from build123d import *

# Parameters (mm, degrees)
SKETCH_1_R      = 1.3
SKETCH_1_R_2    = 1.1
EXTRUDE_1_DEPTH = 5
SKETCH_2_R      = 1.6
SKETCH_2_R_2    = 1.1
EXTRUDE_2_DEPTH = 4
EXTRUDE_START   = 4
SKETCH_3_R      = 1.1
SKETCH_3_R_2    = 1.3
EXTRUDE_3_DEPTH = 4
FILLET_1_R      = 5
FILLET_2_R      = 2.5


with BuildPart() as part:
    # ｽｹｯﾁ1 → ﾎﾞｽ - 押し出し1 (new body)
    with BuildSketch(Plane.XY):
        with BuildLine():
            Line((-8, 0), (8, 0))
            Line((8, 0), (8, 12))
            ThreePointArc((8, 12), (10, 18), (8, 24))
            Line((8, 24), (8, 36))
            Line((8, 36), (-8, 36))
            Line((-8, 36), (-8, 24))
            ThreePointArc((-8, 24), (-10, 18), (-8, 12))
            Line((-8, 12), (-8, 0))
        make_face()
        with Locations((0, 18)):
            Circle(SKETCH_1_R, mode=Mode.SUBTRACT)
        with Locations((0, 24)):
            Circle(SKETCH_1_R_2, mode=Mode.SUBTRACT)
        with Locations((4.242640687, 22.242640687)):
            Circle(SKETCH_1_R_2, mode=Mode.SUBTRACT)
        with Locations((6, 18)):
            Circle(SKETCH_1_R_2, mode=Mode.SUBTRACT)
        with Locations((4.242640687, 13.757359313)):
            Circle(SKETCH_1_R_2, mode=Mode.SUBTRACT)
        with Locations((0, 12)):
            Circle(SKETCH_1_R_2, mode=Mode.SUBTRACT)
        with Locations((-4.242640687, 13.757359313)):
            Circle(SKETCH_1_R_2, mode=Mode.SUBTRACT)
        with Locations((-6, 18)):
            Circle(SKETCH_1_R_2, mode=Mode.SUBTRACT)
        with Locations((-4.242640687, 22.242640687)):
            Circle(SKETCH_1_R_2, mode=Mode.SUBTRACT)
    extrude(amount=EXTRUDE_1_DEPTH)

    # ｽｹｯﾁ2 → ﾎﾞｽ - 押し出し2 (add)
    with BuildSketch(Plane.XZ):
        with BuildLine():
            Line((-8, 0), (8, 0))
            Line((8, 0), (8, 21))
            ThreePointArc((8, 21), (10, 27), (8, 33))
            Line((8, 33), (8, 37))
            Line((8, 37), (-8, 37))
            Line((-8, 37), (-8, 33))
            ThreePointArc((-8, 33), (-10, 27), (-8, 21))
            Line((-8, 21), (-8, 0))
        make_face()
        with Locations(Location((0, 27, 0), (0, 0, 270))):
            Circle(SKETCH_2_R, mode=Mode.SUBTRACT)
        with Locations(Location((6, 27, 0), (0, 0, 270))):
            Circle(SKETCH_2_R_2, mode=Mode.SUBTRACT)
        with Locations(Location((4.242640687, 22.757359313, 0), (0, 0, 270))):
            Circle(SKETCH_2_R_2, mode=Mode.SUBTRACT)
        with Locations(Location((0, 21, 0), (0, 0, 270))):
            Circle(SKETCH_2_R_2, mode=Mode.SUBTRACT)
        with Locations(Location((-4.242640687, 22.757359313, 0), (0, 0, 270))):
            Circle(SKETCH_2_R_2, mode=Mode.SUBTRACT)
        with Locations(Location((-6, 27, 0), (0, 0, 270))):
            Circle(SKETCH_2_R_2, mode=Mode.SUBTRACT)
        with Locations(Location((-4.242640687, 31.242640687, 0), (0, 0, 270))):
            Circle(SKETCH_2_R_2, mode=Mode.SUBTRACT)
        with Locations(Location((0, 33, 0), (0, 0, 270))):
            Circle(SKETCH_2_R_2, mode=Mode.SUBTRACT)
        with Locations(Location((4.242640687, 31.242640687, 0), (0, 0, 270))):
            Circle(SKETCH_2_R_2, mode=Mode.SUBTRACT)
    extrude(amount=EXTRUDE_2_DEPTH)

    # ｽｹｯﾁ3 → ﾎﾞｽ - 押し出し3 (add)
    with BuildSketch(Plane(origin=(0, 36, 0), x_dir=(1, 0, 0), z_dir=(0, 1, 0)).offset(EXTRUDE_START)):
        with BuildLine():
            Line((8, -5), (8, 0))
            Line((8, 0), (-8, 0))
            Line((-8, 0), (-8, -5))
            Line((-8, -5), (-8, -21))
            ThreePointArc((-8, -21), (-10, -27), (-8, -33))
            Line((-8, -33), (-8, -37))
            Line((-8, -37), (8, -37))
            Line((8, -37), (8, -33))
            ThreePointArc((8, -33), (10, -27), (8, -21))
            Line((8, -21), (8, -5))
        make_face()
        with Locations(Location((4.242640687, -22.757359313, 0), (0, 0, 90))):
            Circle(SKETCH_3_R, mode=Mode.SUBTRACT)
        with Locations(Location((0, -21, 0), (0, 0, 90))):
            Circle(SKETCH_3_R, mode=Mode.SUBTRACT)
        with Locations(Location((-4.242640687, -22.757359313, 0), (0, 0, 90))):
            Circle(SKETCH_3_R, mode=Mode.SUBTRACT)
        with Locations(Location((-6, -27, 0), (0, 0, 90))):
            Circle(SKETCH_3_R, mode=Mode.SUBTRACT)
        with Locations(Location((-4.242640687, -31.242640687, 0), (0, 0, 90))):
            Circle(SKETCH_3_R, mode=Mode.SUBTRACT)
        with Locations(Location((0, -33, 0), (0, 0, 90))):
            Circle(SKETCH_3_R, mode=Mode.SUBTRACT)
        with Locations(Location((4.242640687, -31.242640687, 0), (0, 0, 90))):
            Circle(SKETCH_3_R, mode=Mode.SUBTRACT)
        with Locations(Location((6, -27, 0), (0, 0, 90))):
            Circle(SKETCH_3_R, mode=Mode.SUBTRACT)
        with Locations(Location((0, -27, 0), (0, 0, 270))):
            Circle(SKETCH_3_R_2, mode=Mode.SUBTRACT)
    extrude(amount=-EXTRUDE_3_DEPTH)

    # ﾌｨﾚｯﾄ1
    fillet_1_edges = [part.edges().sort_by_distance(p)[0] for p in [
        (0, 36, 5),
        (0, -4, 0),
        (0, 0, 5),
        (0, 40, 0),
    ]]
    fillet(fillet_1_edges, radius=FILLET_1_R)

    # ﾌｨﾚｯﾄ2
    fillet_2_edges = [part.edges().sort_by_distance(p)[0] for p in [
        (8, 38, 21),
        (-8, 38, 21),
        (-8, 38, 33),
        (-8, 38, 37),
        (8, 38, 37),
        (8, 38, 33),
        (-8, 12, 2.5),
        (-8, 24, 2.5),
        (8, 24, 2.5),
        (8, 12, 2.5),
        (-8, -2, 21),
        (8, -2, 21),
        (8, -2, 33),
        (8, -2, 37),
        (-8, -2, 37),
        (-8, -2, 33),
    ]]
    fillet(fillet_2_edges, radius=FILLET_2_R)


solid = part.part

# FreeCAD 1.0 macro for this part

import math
import FreeCAD as App
import Part
import Sketcher


def edges_at(feature, points):
    """Names of the edges that pass closest to the given points."""
    edges = feature.Shape.Edges
    near = lambda p: min(range(len(edges)), key=lambda i: edges[i].distToShape(Part.Vertex(*p))[0])
    return sorted({f"Edge{near(p) + 1}" for p in points})

doc = App.newDocument("Part")
params = doc.addObject("Spreadsheet::Sheet", "Params")
for row, (alias, value) in enumerate([
    ("sketch1_radius", "10 mm"),
    ("sketch1_diameter", "2.2 mm"),
    ("sketch1_diameter2", "2.6 mm"),
    ("sketch1_width", "16 mm"),
    ("sketch1_height", "12 mm"),
    ("pad1_length", "5 mm"),
    ("sketch2_radius", "10 mm"),
    ("sketch2_diameter", "2.2 mm"),
    ("sketch2_diameter2", "3.2 mm"),
    ("sketch2_width", "16 mm"),
    ("sketch2_height", "21 mm"),
    ("pad2_length", "4 mm"),
    ("sketch3_radius", "10 mm"),
    ("sketch3_diameter", "2.2 mm"),
    ("sketch3_diameter2", "2.6 mm"),
    ("sketch3_width", "16 mm"),
    ("sketch3_height", "21 mm"),
    ("pad3_length", "4 mm"),
    ("fillet_radius", "5 mm"),
    ("fillet2_radius", "2.5 mm"),
], start=1):
    params.set(f"A{row}", alias)
    params.set(f"B{row}", "=" + value)
    params.setAlias(f"B{row}", alias)

body = doc.addObject("PartDesign::Body", "Body")

sketch1 = body.newObject("Sketcher::SketchObject", "Sketch")
sketch1.AttachmentSupport = (doc.getObject("XY_Plane"), [""])
sketch1.MapMode = "FlatFace"
sketch1.addGeometry(Part.LineSegment(App.Vector(-8, 0, 0), App.Vector(8, 0, 0)), False)
sketch1.addGeometry(Part.LineSegment(App.Vector(8, 0, 0), App.Vector(8, 12, 0)), False)
sketch1.addGeometry(Part.ArcOfCircle(Part.Circle(App.Vector(0, 18, 0), App.Vector(0, 0, 1), 10), math.radians(-37), math.radians(37)), False)
sketch1.addGeometry(Part.LineSegment(App.Vector(8, 24, 0), App.Vector(8, 36, 0)), False)
sketch1.addGeometry(Part.LineSegment(App.Vector(8, 36, 0), App.Vector(-8, 36, 0)), False)
sketch1.addGeometry(Part.LineSegment(App.Vector(-8, 36, 0), App.Vector(-8, 24, 0)), False)
sketch1.addGeometry(Part.ArcOfCircle(Part.Circle(App.Vector(0, 18, 0), App.Vector(0, 0, 1), 10), math.radians(143), math.radians(217)), False)
sketch1.addGeometry(Part.LineSegment(App.Vector(-8, 12, 0), App.Vector(-8, 0, 0)), False)
sketch1.addGeometry(Part.Circle(App.Vector(-4.2, 13.8, 0), App.Vector(0, 0, 1), 1.1), False)
sketch1.addGeometry(Part.Circle(App.Vector(0, 12, 0), App.Vector(0, 0, 1), 1.1), False)
sketch1.addGeometry(Part.Circle(App.Vector(4.2, 13.8, 0), App.Vector(0, 0, 1), 1.1), False)
sketch1.addGeometry(Part.Circle(App.Vector(-6, 18, 0), App.Vector(0, 0, 1), 1.1), False)
sketch1.addGeometry(Part.Circle(App.Vector(-4.2, 22.2, 0), App.Vector(0, 0, 1), 1.1), False)
sketch1.addGeometry(Part.Circle(App.Vector(0, 18, 0), App.Vector(0, 0, 1), 1.3), False)
sketch1.addGeometry(Part.Circle(App.Vector(6, 18, 0), App.Vector(0, 0, 1), 1.1), False)
sketch1.addGeometry(Part.Circle(App.Vector(0, 24, 0), App.Vector(0, 0, 1), 1.1), False)
sketch1.addGeometry(Part.Circle(App.Vector(4.2, 22.2, 0), App.Vector(0, 0, 1), 1.1), False)
sketch1.addConstraint(Sketcher.Constraint("Coincident", 0, 2, 1, 1))
sketch1.addConstraint(Sketcher.Constraint("Coincident", 1, 2, 2, 1))
sketch1.addConstraint(Sketcher.Constraint("Coincident", 2, 2, 3, 1))
sketch1.addConstraint(Sketcher.Constraint("Coincident", 3, 2, 4, 1))
sketch1.addConstraint(Sketcher.Constraint("Coincident", 4, 2, 5, 1))
sketch1.addConstraint(Sketcher.Constraint("Coincident", 5, 2, 6, 1))
sketch1.addConstraint(Sketcher.Constraint("Coincident", 6, 2, 7, 1))
sketch1.addConstraint(Sketcher.Constraint("Coincident", 7, 2, 0, 1))
sketch1.addConstraint(Sketcher.Constraint("Horizontal", 0))
sketch1.addConstraint(Sketcher.Constraint("Vertical", 1))
sketch1.addConstraint(Sketcher.Constraint("Vertical", 3))
sketch1.addConstraint(Sketcher.Constraint("Horizontal", 4))
sketch1.addConstraint(Sketcher.Constraint("Vertical", 5))
sketch1.addConstraint(Sketcher.Constraint("Vertical", 7))
sketch1.addConstraint(Sketcher.Constraint("Coincident", 6, 3, 2, 3))
sketch1.addConstraint(Sketcher.Constraint("Coincident", 13, 3, 2, 3))
sketch1.addConstraint(Sketcher.Constraint("Equal", 2, 6))
sketch1.addConstraint(Sketcher.Constraint("Equal", 8, 9))
sketch1.addConstraint(Sketcher.Constraint("Equal", 9, 10))
sketch1.addConstraint(Sketcher.Constraint("Equal", 10, 11))
sketch1.addConstraint(Sketcher.Constraint("Equal", 11, 12))
sketch1.addConstraint(Sketcher.Constraint("Equal", 12, 14))
sketch1.addConstraint(Sketcher.Constraint("Equal", 14, 15))
sketch1.addConstraint(Sketcher.Constraint("Equal", 15, 16))
sketch1.addConstraint(Sketcher.Constraint("Symmetric", 0, 2, 7, 2, -1, 1))
sketch1.addConstraint(Sketcher.Constraint("Symmetric", 8, 3, 10, 3, -2))
sketch1.addConstraint(Sketcher.Constraint("Symmetric", 11, 3, 14, 3, -2))
sketch1.addConstraint(Sketcher.Constraint("Symmetric", 12, 3, 16, 3, -2))
sketch1.addConstraint(Sketcher.Constraint("Symmetric", 2, 2, 5, 2, -2))
sketch1.addConstraint(Sketcher.Constraint("PointOnObject", 9, 3, -2))
sketch1.addConstraint(Sketcher.Constraint("PointOnObject", 15, 3, -2))
sketch1.addConstraint(Sketcher.Constraint("Horizontal", 6, 3, 11, 3))
sketch1.addConstraint(Sketcher.Constraint("Horizontal", 9, 3, 1, 2))
sketch1.addConstraint(Sketcher.Constraint("Horizontal", 15, 3, 2, 2))
sketch1.addConstraint(Sketcher.Constraint("Vertical", 8, 3, 12, 3))
sketch1.addConstraint(Sketcher.Constraint("Vertical", 1, 2, 2, 2))
sketch1.addConstraint(Sketcher.Constraint("Equal", 1, 3))
sketch1.addConstraint(Sketcher.Constraint("Radius", 2, 10.0))
sketch1.addConstraint(Sketcher.Constraint("Diameter", 8, 2.2))
sketch1.addConstraint(Sketcher.Constraint("Diameter", 13, 2.6))
sketch1.addConstraint(Sketcher.Constraint("DistanceX", 0, 1, 0, 2, 16.0))
sketch1.addConstraint(Sketcher.Constraint("DistanceY", 1, 1, 1, 2, 12.0))
sketch1.addConstraint(Sketcher.Constraint("DistanceX", 11, 3, -1, 1, 6.0))
sketch1.addConstraint(Sketcher.Constraint("DistanceX", 8, 3, -1, 1, 4.242641))
sketch1.addConstraint(Sketcher.Constraint("DistanceY", -1, 1, 8, 3, 13.757359))
sketch1.addConstraint(Sketcher.Constraint("DistanceY", -1, 1, 12, 3, 22.242641))
sketch1.setExpression("Constraints[37]", "Params.sketch1_radius")
sketch1.setExpression("Constraints[38]", "Params.sketch1_diameter")
sketch1.setExpression("Constraints[39]", "Params.sketch1_diameter2")
sketch1.setExpression("Constraints[40]", "Params.sketch1_width")
sketch1.setExpression("Constraints[41]", "Params.sketch1_height")
pad1 = body.newObject("PartDesign::Pad", "Pad")
pad1.Profile = sketch1
pad1.setExpression("Length", "Params.pad1_length")

sketch2 = body.newObject("Sketcher::SketchObject", "Sketch001")
sketch2.AttachmentSupport = (doc.getObject("XZ_Plane"), [""])
sketch2.MapMode = "FlatFace"
sketch2.addGeometry(Part.LineSegment(App.Vector(-8, 0, 0), App.Vector(8, 0, 0)), False)
sketch2.addGeometry(Part.LineSegment(App.Vector(8, 0, 0), App.Vector(8, 21, 0)), False)
sketch2.addGeometry(Part.ArcOfCircle(Part.Circle(App.Vector(0, 27, 0), App.Vector(0, 0, 1), 10), math.radians(-37), math.radians(37)), False)
sketch2.addGeometry(Part.LineSegment(App.Vector(8, 33, 0), App.Vector(8, 37, 0)), False)
sketch2.addGeometry(Part.LineSegment(App.Vector(8, 37, 0), App.Vector(-8, 37, 0)), False)
sketch2.addGeometry(Part.LineSegment(App.Vector(-8, 37, 0), App.Vector(-8, 33, 0)), False)
sketch2.addGeometry(Part.ArcOfCircle(Part.Circle(App.Vector(0, 27, 0), App.Vector(0, 0, 1), 10), math.radians(143), math.radians(217)), False)
sketch2.addGeometry(Part.LineSegment(App.Vector(-8, 21, 0), App.Vector(-8, 0, 0)), False)
sketch2.addGeometry(Part.Circle(App.Vector(-4.2, 22.8, 0), App.Vector(0, 0, 1), 1.1), False)
sketch2.addGeometry(Part.Circle(App.Vector(0, 21, 0), App.Vector(0, 0, 1), 1.1), False)
sketch2.addGeometry(Part.Circle(App.Vector(4.2, 22.8, 0), App.Vector(0, 0, 1), 1.1), False)
sketch2.addGeometry(Part.Circle(App.Vector(-6, 27, 0), App.Vector(0, 0, 1), 1.1), False)
sketch2.addGeometry(Part.Circle(App.Vector(-4.2, 31.2, 0), App.Vector(0, 0, 1), 1.1), False)
sketch2.addGeometry(Part.Circle(App.Vector(0, 27, 0), App.Vector(0, 0, 1), 1.6), False)
sketch2.addGeometry(Part.Circle(App.Vector(6, 27, 0), App.Vector(0, 0, 1), 1.1), False)
sketch2.addGeometry(Part.Circle(App.Vector(0, 33, 0), App.Vector(0, 0, 1), 1.1), False)
sketch2.addGeometry(Part.Circle(App.Vector(4.2, 31.2, 0), App.Vector(0, 0, 1), 1.1), False)
sketch2.addConstraint(Sketcher.Constraint("Coincident", 0, 2, 1, 1))
sketch2.addConstraint(Sketcher.Constraint("Coincident", 1, 2, 2, 1))
sketch2.addConstraint(Sketcher.Constraint("Coincident", 2, 2, 3, 1))
sketch2.addConstraint(Sketcher.Constraint("Coincident", 3, 2, 4, 1))
sketch2.addConstraint(Sketcher.Constraint("Coincident", 4, 2, 5, 1))
sketch2.addConstraint(Sketcher.Constraint("Coincident", 5, 2, 6, 1))
sketch2.addConstraint(Sketcher.Constraint("Coincident", 6, 2, 7, 1))
sketch2.addConstraint(Sketcher.Constraint("Coincident", 7, 2, 0, 1))
sketch2.addConstraint(Sketcher.Constraint("Horizontal", 0))
sketch2.addConstraint(Sketcher.Constraint("Vertical", 1))
sketch2.addConstraint(Sketcher.Constraint("Vertical", 3))
sketch2.addConstraint(Sketcher.Constraint("Horizontal", 4))
sketch2.addConstraint(Sketcher.Constraint("Vertical", 5))
sketch2.addConstraint(Sketcher.Constraint("Vertical", 7))
sketch2.addConstraint(Sketcher.Constraint("Coincident", 6, 3, 2, 3))
sketch2.addConstraint(Sketcher.Constraint("Coincident", 13, 3, 2, 3))
sketch2.addConstraint(Sketcher.Constraint("Equal", 2, 6))
sketch2.addConstraint(Sketcher.Constraint("Equal", 8, 9))
sketch2.addConstraint(Sketcher.Constraint("Equal", 9, 10))
sketch2.addConstraint(Sketcher.Constraint("Equal", 10, 11))
sketch2.addConstraint(Sketcher.Constraint("Equal", 11, 12))
sketch2.addConstraint(Sketcher.Constraint("Equal", 12, 14))
sketch2.addConstraint(Sketcher.Constraint("Equal", 14, 15))
sketch2.addConstraint(Sketcher.Constraint("Equal", 15, 16))
sketch2.addConstraint(Sketcher.Constraint("Symmetric", 0, 2, 7, 2, -1, 1))
sketch2.addConstraint(Sketcher.Constraint("Symmetric", 8, 3, 10, 3, -2))
sketch2.addConstraint(Sketcher.Constraint("Symmetric", 11, 3, 14, 3, -2))
sketch2.addConstraint(Sketcher.Constraint("Symmetric", 12, 3, 16, 3, -2))
sketch2.addConstraint(Sketcher.Constraint("Symmetric", 2, 2, 5, 2, -2))
sketch2.addConstraint(Sketcher.Constraint("PointOnObject", 9, 3, -2))
sketch2.addConstraint(Sketcher.Constraint("PointOnObject", 15, 3, -2))
sketch2.addConstraint(Sketcher.Constraint("Horizontal", 6, 3, 11, 3))
sketch2.addConstraint(Sketcher.Constraint("Horizontal", 9, 3, 1, 2))
sketch2.addConstraint(Sketcher.Constraint("Horizontal", 15, 3, 2, 2))
sketch2.addConstraint(Sketcher.Constraint("Vertical", 8, 3, 12, 3))
sketch2.addConstraint(Sketcher.Constraint("Vertical", 1, 2, 2, 2))
sketch2.addConstraint(Sketcher.Constraint("Radius", 2, 10.0))
sketch2.addConstraint(Sketcher.Constraint("Diameter", 8, 2.2))
sketch2.addConstraint(Sketcher.Constraint("Diameter", 13, 3.2))
sketch2.addConstraint(Sketcher.Constraint("DistanceX", 0, 1, 0, 2, 16.0))
sketch2.addConstraint(Sketcher.Constraint("DistanceY", 1, 1, 1, 2, 21.0))
sketch2.addConstraint(Sketcher.Constraint("DistanceY", 3, 1, 3, 2, 4.0))
sketch2.addConstraint(Sketcher.Constraint("DistanceX", 11, 3, -1, 1, 6.0))
sketch2.addConstraint(Sketcher.Constraint("DistanceX", 8, 3, -1, 1, 4.242641))
sketch2.addConstraint(Sketcher.Constraint("DistanceY", -1, 1, 8, 3, 22.757359))
sketch2.addConstraint(Sketcher.Constraint("DistanceY", -1, 1, 12, 3, 31.242641))
sketch2.setExpression("Constraints[36]", "Params.sketch2_radius")
sketch2.setExpression("Constraints[37]", "Params.sketch2_diameter")
sketch2.setExpression("Constraints[38]", "Params.sketch2_diameter2")
sketch2.setExpression("Constraints[39]", "Params.sketch2_width")
sketch2.setExpression("Constraints[40]", "Params.sketch2_height")
pad2 = body.newObject("PartDesign::Pad", "Pad001")
pad2.Profile = sketch2
pad2.setExpression("Length", "Params.pad2_length")

sketch3 = body.newObject("Sketcher::SketchObject", "Sketch002")
sketch3.AttachmentSupport = (doc.getObject("XZ_Plane"), [""])
sketch3.MapMode = "FlatFace"
sketch3.AttachmentOffset = App.Placement(App.Vector(0, 0, -40), App.Rotation())
sketch3.addGeometry(Part.LineSegment(App.Vector(8, 0, 0), App.Vector(-8, 0, 0)), False)
sketch3.addGeometry(Part.LineSegment(App.Vector(-8, 0, 0), App.Vector(-8, 21, 0)), False)
sketch3.addGeometry(Part.ArcOfCircle(Part.Circle(App.Vector(0, 27, 0), App.Vector(0, 0, 1), 10), math.radians(143), math.radians(217)), False)
sketch3.addGeometry(Part.LineSegment(App.Vector(-8, 33, 0), App.Vector(-8, 37, 0)), False)
sketch3.addGeometry(Part.LineSegment(App.Vector(-8, 37, 0), App.Vector(8, 37, 0)), False)
sketch3.addGeometry(Part.LineSegment(App.Vector(8, 37, 0), App.Vector(8, 33, 0)), False)
sketch3.addGeometry(Part.ArcOfCircle(Part.Circle(App.Vector(0, 27, 0), App.Vector(0, 0, 1), 10), math.radians(-37), math.radians(37)), False)
sketch3.addGeometry(Part.LineSegment(App.Vector(8, 21, 0), App.Vector(8, 0, 0)), False)
sketch3.addGeometry(Part.Circle(App.Vector(-4.2, 31.2, 0), App.Vector(0, 0, 1), 1.1), False)
sketch3.addGeometry(Part.Circle(App.Vector(0, 33, 0), App.Vector(0, 0, 1), 1.1), False)
sketch3.addGeometry(Part.Circle(App.Vector(4.2, 31.2, 0), App.Vector(0, 0, 1), 1.1), False)
sketch3.addGeometry(Part.Circle(App.Vector(-6, 27, 0), App.Vector(0, 0, 1), 1.1), False)
sketch3.addGeometry(Part.Circle(App.Vector(-4.2, 22.8, 0), App.Vector(0, 0, 1), 1.1), False)
sketch3.addGeometry(Part.Circle(App.Vector(0, 27, 0), App.Vector(0, 0, 1), 1.3), False)
sketch3.addGeometry(Part.Circle(App.Vector(6, 27, 0), App.Vector(0, 0, 1), 1.1), False)
sketch3.addGeometry(Part.Circle(App.Vector(0, 21, 0), App.Vector(0, 0, 1), 1.1), False)
sketch3.addGeometry(Part.Circle(App.Vector(4.2, 22.8, 0), App.Vector(0, 0, 1), 1.1), False)
sketch3.addConstraint(Sketcher.Constraint("Coincident", 0, 2, 1, 1))
sketch3.addConstraint(Sketcher.Constraint("Coincident", 1, 2, 2, 2))
sketch3.addConstraint(Sketcher.Constraint("Coincident", 2, 1, 3, 1))
sketch3.addConstraint(Sketcher.Constraint("Coincident", 3, 2, 4, 1))
sketch3.addConstraint(Sketcher.Constraint("Coincident", 4, 2, 5, 1))
sketch3.addConstraint(Sketcher.Constraint("Coincident", 5, 2, 6, 2))
sketch3.addConstraint(Sketcher.Constraint("Coincident", 6, 1, 7, 1))
sketch3.addConstraint(Sketcher.Constraint("Coincident", 7, 2, 0, 1))
sketch3.addConstraint(Sketcher.Constraint("Horizontal", 0))
sketch3.addConstraint(Sketcher.Constraint("Vertical", 1))
sketch3.addConstraint(Sketcher.Constraint("Vertical", 3))
sketch3.addConstraint(Sketcher.Constraint("Horizontal", 4))
sketch3.addConstraint(Sketcher.Constraint("Vertical", 5))
sketch3.addConstraint(Sketcher.Constraint("Vertical", 7))
sketch3.addConstraint(Sketcher.Constraint("Coincident", 6, 3, 2, 3))
sketch3.addConstraint(Sketcher.Constraint("Coincident", 13, 3, 2, 3))
sketch3.addConstraint(Sketcher.Constraint("Equal", 2, 6))
sketch3.addConstraint(Sketcher.Constraint("Equal", 8, 9))
sketch3.addConstraint(Sketcher.Constraint("Equal", 9, 10))
sketch3.addConstraint(Sketcher.Constraint("Equal", 10, 11))
sketch3.addConstraint(Sketcher.Constraint("Equal", 11, 12))
sketch3.addConstraint(Sketcher.Constraint("Equal", 12, 14))
sketch3.addConstraint(Sketcher.Constraint("Equal", 14, 15))
sketch3.addConstraint(Sketcher.Constraint("Equal", 15, 16))
sketch3.addConstraint(Sketcher.Constraint("Symmetric", 0, 2, 7, 2, -1, 1))
sketch3.addConstraint(Sketcher.Constraint("Symmetric", 8, 3, 10, 3, -2))
sketch3.addConstraint(Sketcher.Constraint("Symmetric", 11, 3, 14, 3, -2))
sketch3.addConstraint(Sketcher.Constraint("Symmetric", 12, 3, 16, 3, -2))
sketch3.addConstraint(Sketcher.Constraint("Symmetric", 2, 1, 5, 2, -2))
sketch3.addConstraint(Sketcher.Constraint("PointOnObject", 9, 3, -2))
sketch3.addConstraint(Sketcher.Constraint("PointOnObject", 15, 3, -2))
sketch3.addConstraint(Sketcher.Constraint("Horizontal", 6, 3, 11, 3))
sketch3.addConstraint(Sketcher.Constraint("Horizontal", 15, 3, 1, 2))
sketch3.addConstraint(Sketcher.Constraint("Horizontal", 9, 3, 2, 1))
sketch3.addConstraint(Sketcher.Constraint("Vertical", 8, 3, 12, 3))
sketch3.addConstraint(Sketcher.Constraint("Vertical", 1, 2, 2, 1))
sketch3.addConstraint(Sketcher.Constraint("Radius", 2, 10.0))
sketch3.addConstraint(Sketcher.Constraint("Diameter", 8, 2.2))
sketch3.addConstraint(Sketcher.Constraint("Diameter", 13, 2.6))
sketch3.addConstraint(Sketcher.Constraint("DistanceX", 0, 2, 0, 1, 16.0))
sketch3.addConstraint(Sketcher.Constraint("DistanceY", 1, 1, 1, 2, 21.0))
sketch3.addConstraint(Sketcher.Constraint("DistanceY", 3, 1, 3, 2, 4.0))
sketch3.addConstraint(Sketcher.Constraint("DistanceX", 11, 3, -1, 1, 6.0))
sketch3.addConstraint(Sketcher.Constraint("DistanceX", 8, 3, -1, 1, 4.242641))
sketch3.addConstraint(Sketcher.Constraint("DistanceY", -1, 1, 8, 3, 31.242641))
sketch3.addConstraint(Sketcher.Constraint("DistanceY", -1, 1, 12, 3, 22.757359))
sketch3.setExpression("Constraints[36]", "Params.sketch3_radius")
sketch3.setExpression("Constraints[37]", "Params.sketch3_diameter")
sketch3.setExpression("Constraints[38]", "Params.sketch3_diameter2")
sketch3.setExpression("Constraints[39]", "Params.sketch3_width")
sketch3.setExpression("Constraints[40]", "Params.sketch3_height")
pad3 = body.newObject("PartDesign::Pad", "Pad002")
pad3.Profile = sketch3
pad3.setExpression("Length", "Params.pad3_length")
doc.recompute()

fillet = body.newObject("PartDesign::Fillet", "Fillet")
fillet.Base = (pad3, edges_at(pad3, [
    (0, 36, 5),
    (0, -4, 0),
    (0, 0, 5),
    (0, 40, 0),
]))
fillet.setExpression("Radius", "Params.fillet_radius")
doc.recompute()

fillet2 = body.newObject("PartDesign::Fillet", "Fillet001")
fillet2.Base = (fillet, edges_at(fillet, [
    (8, 38, 21),
    (-8, 38, 21),
    (-8, 38, 33),
    (-8, 38, 37),
    (8, 38, 37),
    (8, 38, 33),
    (-8, 12, 2.5),
    (-8, 24, 2.5),
    (8, 24, 2.5),
    (8, 12, 2.5),
    (-8, -2, 21),
    (8, -2, 21),
    (8, -2, 33),
    (8, -2, 37),
    (-8, -2, 37),
    (-8, -2, 33),
]))
fillet2.setExpression("Radius", "Params.fillet2_radius")

doc.recompute()
